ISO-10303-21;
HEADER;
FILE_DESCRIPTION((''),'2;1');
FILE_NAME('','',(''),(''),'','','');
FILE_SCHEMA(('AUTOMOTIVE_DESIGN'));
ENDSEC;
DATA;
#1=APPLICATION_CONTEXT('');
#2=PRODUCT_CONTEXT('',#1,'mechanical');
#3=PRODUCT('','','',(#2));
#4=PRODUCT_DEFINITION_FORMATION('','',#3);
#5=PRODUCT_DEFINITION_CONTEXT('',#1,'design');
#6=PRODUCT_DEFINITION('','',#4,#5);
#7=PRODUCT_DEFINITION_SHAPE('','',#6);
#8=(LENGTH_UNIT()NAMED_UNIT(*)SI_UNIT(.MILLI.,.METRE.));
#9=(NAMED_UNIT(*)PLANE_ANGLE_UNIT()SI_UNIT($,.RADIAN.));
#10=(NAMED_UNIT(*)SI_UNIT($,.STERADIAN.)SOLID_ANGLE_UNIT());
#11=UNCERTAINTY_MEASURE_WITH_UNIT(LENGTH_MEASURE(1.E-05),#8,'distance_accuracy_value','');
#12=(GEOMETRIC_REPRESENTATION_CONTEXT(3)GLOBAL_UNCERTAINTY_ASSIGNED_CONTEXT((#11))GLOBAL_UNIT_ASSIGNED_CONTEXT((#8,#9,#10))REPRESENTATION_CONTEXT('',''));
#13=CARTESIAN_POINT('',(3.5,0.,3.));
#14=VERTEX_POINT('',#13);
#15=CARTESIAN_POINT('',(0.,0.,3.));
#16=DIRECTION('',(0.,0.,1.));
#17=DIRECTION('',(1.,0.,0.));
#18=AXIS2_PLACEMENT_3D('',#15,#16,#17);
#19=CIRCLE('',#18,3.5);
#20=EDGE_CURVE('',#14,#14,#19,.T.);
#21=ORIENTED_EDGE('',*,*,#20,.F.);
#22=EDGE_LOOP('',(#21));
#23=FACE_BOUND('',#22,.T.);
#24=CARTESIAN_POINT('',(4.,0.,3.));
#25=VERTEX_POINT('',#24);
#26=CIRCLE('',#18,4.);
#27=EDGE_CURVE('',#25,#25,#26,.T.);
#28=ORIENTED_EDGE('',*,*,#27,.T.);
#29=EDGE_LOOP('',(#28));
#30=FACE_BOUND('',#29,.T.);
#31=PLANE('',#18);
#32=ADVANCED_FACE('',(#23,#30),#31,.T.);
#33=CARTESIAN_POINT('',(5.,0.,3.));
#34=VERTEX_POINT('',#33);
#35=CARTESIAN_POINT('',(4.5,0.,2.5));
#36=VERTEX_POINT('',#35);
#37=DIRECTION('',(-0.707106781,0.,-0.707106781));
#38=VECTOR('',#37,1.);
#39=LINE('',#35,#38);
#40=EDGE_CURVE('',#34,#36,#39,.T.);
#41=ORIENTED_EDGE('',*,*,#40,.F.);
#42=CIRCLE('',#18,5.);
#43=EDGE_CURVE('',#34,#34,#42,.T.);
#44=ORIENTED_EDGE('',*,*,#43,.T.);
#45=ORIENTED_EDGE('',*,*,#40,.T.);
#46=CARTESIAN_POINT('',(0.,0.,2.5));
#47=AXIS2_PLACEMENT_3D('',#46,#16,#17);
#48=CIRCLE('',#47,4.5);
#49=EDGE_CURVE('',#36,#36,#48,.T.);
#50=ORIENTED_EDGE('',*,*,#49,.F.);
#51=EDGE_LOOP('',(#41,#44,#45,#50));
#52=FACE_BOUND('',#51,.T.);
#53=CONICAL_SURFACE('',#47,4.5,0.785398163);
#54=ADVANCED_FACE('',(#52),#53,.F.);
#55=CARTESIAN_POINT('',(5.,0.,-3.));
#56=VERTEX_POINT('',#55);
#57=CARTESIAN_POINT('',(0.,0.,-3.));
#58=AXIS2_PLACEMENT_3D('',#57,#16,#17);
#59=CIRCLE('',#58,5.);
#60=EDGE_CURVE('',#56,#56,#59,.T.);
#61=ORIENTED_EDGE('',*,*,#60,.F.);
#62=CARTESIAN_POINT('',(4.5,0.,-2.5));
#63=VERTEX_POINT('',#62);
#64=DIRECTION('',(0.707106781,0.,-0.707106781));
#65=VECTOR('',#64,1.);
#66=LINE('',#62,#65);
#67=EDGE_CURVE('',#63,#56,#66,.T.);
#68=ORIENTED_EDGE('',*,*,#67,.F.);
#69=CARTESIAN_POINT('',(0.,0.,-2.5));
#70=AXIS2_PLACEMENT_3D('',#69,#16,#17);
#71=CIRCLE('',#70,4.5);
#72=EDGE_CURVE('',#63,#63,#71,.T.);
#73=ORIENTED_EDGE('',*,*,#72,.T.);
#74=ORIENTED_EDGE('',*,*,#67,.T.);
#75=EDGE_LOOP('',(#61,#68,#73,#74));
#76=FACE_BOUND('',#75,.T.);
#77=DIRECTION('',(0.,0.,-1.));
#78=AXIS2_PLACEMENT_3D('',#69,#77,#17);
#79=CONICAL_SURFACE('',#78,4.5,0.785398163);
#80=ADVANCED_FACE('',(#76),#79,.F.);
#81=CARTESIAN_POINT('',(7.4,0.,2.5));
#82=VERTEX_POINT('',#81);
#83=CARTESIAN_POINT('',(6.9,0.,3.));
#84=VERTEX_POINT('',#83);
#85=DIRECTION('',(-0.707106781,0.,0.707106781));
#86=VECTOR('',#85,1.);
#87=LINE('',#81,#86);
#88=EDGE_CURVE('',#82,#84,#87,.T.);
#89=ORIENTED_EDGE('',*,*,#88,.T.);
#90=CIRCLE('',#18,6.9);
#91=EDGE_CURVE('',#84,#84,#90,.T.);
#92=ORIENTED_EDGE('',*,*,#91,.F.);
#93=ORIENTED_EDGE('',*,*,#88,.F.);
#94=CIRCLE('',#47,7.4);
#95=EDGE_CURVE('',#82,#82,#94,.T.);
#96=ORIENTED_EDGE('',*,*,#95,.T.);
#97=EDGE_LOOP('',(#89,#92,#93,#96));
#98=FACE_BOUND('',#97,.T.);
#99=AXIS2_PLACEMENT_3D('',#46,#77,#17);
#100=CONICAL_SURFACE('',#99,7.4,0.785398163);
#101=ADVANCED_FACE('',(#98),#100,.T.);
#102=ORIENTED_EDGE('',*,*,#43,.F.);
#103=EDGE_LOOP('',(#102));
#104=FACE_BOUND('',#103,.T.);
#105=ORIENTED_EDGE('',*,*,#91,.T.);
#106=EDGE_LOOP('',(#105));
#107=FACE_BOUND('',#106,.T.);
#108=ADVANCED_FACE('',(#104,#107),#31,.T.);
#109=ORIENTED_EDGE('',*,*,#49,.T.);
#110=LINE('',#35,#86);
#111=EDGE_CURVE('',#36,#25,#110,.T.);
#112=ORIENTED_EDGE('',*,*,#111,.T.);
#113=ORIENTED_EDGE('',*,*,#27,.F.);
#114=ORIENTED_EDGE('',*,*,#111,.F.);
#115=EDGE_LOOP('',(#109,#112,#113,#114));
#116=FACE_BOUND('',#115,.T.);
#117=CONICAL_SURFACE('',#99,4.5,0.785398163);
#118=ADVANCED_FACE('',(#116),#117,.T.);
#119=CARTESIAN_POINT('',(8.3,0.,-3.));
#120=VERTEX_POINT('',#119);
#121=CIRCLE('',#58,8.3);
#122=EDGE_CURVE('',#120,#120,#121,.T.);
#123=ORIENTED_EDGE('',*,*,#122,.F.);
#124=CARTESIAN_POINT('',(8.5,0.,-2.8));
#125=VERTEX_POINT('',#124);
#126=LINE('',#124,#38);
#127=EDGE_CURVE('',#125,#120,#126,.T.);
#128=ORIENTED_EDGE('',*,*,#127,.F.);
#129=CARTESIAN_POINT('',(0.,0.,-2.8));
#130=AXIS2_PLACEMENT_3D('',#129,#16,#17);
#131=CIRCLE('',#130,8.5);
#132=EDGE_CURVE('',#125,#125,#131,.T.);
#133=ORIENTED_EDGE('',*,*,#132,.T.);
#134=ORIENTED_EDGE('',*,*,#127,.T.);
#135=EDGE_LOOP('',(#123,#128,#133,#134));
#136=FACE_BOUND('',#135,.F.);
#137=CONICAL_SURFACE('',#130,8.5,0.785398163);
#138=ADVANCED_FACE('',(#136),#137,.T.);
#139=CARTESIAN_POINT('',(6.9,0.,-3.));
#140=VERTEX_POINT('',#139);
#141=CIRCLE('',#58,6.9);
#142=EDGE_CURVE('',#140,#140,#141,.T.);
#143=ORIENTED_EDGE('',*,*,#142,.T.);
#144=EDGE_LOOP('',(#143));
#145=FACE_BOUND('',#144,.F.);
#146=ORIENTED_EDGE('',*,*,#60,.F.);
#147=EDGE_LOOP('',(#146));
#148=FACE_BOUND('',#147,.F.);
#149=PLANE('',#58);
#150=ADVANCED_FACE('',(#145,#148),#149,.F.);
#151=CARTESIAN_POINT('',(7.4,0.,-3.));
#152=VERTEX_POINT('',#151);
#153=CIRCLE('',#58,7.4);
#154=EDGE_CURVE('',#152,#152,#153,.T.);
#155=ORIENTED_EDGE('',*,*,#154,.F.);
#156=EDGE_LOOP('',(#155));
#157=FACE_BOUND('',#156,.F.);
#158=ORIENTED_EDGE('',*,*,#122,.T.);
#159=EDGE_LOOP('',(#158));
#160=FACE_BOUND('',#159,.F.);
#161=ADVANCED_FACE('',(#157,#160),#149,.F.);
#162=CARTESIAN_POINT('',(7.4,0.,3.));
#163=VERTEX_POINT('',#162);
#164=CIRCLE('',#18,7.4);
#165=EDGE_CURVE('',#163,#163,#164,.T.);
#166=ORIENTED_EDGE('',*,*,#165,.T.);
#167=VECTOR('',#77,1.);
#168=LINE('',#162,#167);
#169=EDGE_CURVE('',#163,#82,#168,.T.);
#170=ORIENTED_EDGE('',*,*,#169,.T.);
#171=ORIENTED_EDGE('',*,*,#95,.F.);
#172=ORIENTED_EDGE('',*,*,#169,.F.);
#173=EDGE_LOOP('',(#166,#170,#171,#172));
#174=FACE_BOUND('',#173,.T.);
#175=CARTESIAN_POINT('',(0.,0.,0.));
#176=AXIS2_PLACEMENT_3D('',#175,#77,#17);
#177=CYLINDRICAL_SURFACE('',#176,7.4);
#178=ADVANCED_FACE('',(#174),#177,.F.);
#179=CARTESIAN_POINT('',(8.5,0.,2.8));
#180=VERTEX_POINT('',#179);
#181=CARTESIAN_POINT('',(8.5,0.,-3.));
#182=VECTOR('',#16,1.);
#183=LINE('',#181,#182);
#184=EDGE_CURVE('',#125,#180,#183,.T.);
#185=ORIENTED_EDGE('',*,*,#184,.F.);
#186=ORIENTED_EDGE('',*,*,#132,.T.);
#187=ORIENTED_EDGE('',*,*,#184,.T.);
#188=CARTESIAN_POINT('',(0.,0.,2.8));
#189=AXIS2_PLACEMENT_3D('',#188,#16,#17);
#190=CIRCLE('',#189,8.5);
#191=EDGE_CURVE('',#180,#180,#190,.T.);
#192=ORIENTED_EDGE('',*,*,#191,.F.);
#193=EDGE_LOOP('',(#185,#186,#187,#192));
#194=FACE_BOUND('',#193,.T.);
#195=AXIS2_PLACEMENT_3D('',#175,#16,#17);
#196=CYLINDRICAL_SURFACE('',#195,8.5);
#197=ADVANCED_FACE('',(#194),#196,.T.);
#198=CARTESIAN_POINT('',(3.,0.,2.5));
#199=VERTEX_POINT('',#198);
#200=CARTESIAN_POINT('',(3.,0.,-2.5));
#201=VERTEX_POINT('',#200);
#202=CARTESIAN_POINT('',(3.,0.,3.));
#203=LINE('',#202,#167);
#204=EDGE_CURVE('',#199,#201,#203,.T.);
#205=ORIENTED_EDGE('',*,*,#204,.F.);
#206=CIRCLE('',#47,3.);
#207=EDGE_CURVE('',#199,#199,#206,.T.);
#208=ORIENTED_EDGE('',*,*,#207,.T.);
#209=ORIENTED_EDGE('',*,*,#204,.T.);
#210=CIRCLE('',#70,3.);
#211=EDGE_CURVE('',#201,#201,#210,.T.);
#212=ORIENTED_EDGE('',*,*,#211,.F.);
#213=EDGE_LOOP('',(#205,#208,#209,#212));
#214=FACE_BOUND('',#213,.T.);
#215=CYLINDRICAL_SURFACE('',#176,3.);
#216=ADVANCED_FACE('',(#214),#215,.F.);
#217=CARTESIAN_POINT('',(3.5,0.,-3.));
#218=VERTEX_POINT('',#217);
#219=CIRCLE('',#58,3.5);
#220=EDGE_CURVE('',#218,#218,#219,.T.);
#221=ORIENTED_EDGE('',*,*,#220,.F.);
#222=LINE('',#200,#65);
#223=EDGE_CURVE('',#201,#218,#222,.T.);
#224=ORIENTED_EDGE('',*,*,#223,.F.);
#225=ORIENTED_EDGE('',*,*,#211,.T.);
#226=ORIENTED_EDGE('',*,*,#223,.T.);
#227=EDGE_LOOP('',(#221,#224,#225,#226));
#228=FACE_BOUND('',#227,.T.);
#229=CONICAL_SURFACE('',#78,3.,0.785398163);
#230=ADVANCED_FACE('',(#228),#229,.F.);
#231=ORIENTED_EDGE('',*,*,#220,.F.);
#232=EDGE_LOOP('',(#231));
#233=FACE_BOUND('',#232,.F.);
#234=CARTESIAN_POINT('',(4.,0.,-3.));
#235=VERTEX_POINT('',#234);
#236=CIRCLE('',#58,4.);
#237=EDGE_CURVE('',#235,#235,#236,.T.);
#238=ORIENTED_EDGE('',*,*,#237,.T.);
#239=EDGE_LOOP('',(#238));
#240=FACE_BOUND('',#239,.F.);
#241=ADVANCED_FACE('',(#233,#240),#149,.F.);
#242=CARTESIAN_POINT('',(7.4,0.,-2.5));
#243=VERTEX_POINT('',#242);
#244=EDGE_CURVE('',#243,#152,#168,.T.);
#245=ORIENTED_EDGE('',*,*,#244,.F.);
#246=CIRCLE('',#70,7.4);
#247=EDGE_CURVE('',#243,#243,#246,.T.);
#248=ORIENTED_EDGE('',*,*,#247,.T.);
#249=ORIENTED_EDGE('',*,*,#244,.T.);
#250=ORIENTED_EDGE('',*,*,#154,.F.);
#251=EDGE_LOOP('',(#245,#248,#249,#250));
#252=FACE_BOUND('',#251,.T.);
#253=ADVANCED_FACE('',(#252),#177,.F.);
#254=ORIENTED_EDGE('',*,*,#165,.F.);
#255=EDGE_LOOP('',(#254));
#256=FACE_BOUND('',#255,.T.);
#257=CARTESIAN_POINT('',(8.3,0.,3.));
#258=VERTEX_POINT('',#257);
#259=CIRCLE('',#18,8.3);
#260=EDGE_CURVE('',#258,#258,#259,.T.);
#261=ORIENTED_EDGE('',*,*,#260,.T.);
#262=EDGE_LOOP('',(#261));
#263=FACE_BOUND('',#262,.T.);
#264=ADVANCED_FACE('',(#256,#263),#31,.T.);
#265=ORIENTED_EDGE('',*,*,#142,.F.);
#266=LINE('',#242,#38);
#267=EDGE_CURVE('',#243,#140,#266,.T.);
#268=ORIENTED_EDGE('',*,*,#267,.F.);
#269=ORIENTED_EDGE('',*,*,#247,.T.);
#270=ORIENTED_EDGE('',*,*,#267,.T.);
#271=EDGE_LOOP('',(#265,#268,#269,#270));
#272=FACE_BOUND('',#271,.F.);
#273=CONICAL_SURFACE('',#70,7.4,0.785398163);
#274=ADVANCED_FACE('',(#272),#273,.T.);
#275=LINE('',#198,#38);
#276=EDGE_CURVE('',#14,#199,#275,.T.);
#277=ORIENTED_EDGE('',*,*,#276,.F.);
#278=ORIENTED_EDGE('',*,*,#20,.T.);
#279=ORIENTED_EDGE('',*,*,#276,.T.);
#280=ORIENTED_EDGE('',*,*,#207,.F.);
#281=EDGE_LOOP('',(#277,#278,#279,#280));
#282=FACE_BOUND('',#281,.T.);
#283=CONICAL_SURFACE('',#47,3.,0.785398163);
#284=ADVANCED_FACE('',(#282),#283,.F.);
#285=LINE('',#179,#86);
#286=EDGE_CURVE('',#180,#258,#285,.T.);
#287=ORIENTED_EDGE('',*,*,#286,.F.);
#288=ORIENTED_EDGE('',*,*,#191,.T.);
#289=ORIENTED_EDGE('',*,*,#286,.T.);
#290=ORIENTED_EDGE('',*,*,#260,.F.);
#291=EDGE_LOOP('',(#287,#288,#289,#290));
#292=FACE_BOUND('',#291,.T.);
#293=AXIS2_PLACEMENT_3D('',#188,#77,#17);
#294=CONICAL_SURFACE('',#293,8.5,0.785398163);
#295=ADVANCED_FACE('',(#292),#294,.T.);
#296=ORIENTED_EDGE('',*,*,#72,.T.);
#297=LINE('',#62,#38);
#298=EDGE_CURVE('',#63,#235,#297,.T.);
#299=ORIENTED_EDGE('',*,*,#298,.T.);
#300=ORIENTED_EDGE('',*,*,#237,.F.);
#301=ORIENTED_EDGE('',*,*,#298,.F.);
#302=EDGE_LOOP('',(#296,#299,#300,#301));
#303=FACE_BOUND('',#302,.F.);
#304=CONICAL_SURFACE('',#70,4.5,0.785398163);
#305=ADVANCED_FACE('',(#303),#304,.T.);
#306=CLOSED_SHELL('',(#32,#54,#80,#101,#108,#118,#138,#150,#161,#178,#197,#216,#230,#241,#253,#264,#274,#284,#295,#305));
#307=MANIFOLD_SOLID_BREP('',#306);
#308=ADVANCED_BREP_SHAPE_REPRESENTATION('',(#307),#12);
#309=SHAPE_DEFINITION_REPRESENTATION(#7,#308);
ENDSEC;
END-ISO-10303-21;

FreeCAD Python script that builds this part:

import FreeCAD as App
import Part
import Sketcher
from FreeCAD import Vector


def edges_at(feature, points):
    """Names of the edges that pass closest to the given points."""
    edges = feature.Shape.Edges
    near = lambda p: min(range(len(edges)), key=lambda i: edges[i].distToShape(Part.Vertex(*p))[0])
    return sorted({f"Edge{near(p) + 1}" for p in points})

doc = App.newDocument("Part")
body = doc.addObject("PartDesign::Body", "Body")

sketch1 = body.newObject("Sketcher::SketchObject", "Sketch")
sketch1.AttachmentSupport = (doc.getObject("XY_Plane"), [""])
sketch1.MapMode = "FlatFace"
sketch1.addGeometry([
    Part.Circle(Vector(0, 0, 0), Vector(0, 0, 1), 4.5),
    Part.Circle(Vector(0, 0, 0), Vector(0, 0, 1), 3),
], False)
sketch1.addConstraint([
    Sketcher.Constraint("Coincident", 0, 3, -1, 1),
    Sketcher.Constraint("Coincident", 1, 3, -1, 1),
    Sketcher.Constraint("Diameter", 0, 9.0),
    Sketcher.Constraint("Diameter", 1, 6.0),
])
pad1 = body.newObject("PartDesign::Pad", "Pad")
pad1.Profile = sketch1
pad1.Length = 6
pad1.Midplane = True
doc.recompute()

chamfer = body.newObject("PartDesign::Chamfer", "Chamfer")
chamfer.Base = (pad1, edges_at(pad1, [
    (-4.5, 0, 3),
    (-3, 0, 3),
    (-4.5, 0, -3),
    (-3, 0, -3),
]))
chamfer.Size = 0.5
body2 = doc.addObject("PartDesign::Body", "Body001")

sketch2 = body2.newObject("Sketcher::SketchObject", "Sketch001")
sketch2.AttachmentSupport = (doc.getObject("XY_Plane001"), [""])
sketch2.MapMode = "FlatFace"
sketch2.addGeometry([
    Part.Circle(Vector(0, 0, 0), Vector(0, 0, 1), 7.4),
    Part.Circle(Vector(0, 0, 0), Vector(0, 0, 1), 4.5),
], False)
sketch2.addConstraint([
    Sketcher.Constraint("Coincident", 0, 3, -1, 1),
    Sketcher.Constraint("Coincident", 1, 3, -1, 1),
    Sketcher.Constraint("Diameter", 1, 9.0),
    Sketcher.Constraint("Diameter", 0, 14.8),
])
pad2 = body2.newObject("PartDesign::Pad", "Pad001")
pad2.Profile = sketch2
pad2.Length = 6
pad2.Midplane = True
doc.recompute()

chamfer2 = body2.newObject("PartDesign::Chamfer", "Chamfer001")
chamfer2.Base = (pad2, edges_at(pad2, [
    (-7.4, 0, -3),
    (-4.5, 0, -3),
    (-7.4, 0, 3),
    (-4.5, 0, 3),
]))
chamfer2.Size = 0.5
body3 = doc.addObject("PartDesign::Body", "Body002")
body3.AllowCompound = True

sketch3 = body3.newObject("Sketcher::SketchObject", "Sketch002")
sketch3.AttachmentSupport = (doc.getObject("XY_Plane002"), [""])
sketch3.MapMode = "FlatFace"
sketch3.addGeometry([
    Part.Circle(Vector(0, 0, 0), Vector(0, 0, 1), 8),
    Part.Circle(Vector(0, 0, 0), Vector(0, 0, 1), 7),
], False)
sketch3.addConstraint([
    Sketcher.Constraint("Coincident", 0, 3, -1, 1),
    Sketcher.Constraint("Coincident", 1, 3, -1, 1),
    Sketcher.Constraint("Diameter", 0, 17.0),
    Sketcher.Constraint("Diameter", 1, 14.8),
])
pad3 = body3.newObject("PartDesign::Pad", "Pad002")
pad3.Profile = sketch3
pad3.Length = 6
pad3.Midplane = True
doc.recompute()

chamfer3 = body3.newObject("PartDesign::Chamfer", "Chamfer002")
chamfer3.Base = (pad3, edges_at(pad3, [(8.5, 0, 0), (-8.5, 0, -3), (-8.5, 0, 3)]))
chamfer3.Size = 0.2
doc.recompute()

boolean = body3.newObject("PartDesign::Boolean", "Boolean")
boolean.Type = "Fuse"
boolean.addObjects([body])
doc.recompute()

boolean2 = body3.newObject("PartDesign::Boolean", "Boolean001")
boolean2.Type = "Fuse"
boolean2.addObjects([body2])

doc.recompute()
